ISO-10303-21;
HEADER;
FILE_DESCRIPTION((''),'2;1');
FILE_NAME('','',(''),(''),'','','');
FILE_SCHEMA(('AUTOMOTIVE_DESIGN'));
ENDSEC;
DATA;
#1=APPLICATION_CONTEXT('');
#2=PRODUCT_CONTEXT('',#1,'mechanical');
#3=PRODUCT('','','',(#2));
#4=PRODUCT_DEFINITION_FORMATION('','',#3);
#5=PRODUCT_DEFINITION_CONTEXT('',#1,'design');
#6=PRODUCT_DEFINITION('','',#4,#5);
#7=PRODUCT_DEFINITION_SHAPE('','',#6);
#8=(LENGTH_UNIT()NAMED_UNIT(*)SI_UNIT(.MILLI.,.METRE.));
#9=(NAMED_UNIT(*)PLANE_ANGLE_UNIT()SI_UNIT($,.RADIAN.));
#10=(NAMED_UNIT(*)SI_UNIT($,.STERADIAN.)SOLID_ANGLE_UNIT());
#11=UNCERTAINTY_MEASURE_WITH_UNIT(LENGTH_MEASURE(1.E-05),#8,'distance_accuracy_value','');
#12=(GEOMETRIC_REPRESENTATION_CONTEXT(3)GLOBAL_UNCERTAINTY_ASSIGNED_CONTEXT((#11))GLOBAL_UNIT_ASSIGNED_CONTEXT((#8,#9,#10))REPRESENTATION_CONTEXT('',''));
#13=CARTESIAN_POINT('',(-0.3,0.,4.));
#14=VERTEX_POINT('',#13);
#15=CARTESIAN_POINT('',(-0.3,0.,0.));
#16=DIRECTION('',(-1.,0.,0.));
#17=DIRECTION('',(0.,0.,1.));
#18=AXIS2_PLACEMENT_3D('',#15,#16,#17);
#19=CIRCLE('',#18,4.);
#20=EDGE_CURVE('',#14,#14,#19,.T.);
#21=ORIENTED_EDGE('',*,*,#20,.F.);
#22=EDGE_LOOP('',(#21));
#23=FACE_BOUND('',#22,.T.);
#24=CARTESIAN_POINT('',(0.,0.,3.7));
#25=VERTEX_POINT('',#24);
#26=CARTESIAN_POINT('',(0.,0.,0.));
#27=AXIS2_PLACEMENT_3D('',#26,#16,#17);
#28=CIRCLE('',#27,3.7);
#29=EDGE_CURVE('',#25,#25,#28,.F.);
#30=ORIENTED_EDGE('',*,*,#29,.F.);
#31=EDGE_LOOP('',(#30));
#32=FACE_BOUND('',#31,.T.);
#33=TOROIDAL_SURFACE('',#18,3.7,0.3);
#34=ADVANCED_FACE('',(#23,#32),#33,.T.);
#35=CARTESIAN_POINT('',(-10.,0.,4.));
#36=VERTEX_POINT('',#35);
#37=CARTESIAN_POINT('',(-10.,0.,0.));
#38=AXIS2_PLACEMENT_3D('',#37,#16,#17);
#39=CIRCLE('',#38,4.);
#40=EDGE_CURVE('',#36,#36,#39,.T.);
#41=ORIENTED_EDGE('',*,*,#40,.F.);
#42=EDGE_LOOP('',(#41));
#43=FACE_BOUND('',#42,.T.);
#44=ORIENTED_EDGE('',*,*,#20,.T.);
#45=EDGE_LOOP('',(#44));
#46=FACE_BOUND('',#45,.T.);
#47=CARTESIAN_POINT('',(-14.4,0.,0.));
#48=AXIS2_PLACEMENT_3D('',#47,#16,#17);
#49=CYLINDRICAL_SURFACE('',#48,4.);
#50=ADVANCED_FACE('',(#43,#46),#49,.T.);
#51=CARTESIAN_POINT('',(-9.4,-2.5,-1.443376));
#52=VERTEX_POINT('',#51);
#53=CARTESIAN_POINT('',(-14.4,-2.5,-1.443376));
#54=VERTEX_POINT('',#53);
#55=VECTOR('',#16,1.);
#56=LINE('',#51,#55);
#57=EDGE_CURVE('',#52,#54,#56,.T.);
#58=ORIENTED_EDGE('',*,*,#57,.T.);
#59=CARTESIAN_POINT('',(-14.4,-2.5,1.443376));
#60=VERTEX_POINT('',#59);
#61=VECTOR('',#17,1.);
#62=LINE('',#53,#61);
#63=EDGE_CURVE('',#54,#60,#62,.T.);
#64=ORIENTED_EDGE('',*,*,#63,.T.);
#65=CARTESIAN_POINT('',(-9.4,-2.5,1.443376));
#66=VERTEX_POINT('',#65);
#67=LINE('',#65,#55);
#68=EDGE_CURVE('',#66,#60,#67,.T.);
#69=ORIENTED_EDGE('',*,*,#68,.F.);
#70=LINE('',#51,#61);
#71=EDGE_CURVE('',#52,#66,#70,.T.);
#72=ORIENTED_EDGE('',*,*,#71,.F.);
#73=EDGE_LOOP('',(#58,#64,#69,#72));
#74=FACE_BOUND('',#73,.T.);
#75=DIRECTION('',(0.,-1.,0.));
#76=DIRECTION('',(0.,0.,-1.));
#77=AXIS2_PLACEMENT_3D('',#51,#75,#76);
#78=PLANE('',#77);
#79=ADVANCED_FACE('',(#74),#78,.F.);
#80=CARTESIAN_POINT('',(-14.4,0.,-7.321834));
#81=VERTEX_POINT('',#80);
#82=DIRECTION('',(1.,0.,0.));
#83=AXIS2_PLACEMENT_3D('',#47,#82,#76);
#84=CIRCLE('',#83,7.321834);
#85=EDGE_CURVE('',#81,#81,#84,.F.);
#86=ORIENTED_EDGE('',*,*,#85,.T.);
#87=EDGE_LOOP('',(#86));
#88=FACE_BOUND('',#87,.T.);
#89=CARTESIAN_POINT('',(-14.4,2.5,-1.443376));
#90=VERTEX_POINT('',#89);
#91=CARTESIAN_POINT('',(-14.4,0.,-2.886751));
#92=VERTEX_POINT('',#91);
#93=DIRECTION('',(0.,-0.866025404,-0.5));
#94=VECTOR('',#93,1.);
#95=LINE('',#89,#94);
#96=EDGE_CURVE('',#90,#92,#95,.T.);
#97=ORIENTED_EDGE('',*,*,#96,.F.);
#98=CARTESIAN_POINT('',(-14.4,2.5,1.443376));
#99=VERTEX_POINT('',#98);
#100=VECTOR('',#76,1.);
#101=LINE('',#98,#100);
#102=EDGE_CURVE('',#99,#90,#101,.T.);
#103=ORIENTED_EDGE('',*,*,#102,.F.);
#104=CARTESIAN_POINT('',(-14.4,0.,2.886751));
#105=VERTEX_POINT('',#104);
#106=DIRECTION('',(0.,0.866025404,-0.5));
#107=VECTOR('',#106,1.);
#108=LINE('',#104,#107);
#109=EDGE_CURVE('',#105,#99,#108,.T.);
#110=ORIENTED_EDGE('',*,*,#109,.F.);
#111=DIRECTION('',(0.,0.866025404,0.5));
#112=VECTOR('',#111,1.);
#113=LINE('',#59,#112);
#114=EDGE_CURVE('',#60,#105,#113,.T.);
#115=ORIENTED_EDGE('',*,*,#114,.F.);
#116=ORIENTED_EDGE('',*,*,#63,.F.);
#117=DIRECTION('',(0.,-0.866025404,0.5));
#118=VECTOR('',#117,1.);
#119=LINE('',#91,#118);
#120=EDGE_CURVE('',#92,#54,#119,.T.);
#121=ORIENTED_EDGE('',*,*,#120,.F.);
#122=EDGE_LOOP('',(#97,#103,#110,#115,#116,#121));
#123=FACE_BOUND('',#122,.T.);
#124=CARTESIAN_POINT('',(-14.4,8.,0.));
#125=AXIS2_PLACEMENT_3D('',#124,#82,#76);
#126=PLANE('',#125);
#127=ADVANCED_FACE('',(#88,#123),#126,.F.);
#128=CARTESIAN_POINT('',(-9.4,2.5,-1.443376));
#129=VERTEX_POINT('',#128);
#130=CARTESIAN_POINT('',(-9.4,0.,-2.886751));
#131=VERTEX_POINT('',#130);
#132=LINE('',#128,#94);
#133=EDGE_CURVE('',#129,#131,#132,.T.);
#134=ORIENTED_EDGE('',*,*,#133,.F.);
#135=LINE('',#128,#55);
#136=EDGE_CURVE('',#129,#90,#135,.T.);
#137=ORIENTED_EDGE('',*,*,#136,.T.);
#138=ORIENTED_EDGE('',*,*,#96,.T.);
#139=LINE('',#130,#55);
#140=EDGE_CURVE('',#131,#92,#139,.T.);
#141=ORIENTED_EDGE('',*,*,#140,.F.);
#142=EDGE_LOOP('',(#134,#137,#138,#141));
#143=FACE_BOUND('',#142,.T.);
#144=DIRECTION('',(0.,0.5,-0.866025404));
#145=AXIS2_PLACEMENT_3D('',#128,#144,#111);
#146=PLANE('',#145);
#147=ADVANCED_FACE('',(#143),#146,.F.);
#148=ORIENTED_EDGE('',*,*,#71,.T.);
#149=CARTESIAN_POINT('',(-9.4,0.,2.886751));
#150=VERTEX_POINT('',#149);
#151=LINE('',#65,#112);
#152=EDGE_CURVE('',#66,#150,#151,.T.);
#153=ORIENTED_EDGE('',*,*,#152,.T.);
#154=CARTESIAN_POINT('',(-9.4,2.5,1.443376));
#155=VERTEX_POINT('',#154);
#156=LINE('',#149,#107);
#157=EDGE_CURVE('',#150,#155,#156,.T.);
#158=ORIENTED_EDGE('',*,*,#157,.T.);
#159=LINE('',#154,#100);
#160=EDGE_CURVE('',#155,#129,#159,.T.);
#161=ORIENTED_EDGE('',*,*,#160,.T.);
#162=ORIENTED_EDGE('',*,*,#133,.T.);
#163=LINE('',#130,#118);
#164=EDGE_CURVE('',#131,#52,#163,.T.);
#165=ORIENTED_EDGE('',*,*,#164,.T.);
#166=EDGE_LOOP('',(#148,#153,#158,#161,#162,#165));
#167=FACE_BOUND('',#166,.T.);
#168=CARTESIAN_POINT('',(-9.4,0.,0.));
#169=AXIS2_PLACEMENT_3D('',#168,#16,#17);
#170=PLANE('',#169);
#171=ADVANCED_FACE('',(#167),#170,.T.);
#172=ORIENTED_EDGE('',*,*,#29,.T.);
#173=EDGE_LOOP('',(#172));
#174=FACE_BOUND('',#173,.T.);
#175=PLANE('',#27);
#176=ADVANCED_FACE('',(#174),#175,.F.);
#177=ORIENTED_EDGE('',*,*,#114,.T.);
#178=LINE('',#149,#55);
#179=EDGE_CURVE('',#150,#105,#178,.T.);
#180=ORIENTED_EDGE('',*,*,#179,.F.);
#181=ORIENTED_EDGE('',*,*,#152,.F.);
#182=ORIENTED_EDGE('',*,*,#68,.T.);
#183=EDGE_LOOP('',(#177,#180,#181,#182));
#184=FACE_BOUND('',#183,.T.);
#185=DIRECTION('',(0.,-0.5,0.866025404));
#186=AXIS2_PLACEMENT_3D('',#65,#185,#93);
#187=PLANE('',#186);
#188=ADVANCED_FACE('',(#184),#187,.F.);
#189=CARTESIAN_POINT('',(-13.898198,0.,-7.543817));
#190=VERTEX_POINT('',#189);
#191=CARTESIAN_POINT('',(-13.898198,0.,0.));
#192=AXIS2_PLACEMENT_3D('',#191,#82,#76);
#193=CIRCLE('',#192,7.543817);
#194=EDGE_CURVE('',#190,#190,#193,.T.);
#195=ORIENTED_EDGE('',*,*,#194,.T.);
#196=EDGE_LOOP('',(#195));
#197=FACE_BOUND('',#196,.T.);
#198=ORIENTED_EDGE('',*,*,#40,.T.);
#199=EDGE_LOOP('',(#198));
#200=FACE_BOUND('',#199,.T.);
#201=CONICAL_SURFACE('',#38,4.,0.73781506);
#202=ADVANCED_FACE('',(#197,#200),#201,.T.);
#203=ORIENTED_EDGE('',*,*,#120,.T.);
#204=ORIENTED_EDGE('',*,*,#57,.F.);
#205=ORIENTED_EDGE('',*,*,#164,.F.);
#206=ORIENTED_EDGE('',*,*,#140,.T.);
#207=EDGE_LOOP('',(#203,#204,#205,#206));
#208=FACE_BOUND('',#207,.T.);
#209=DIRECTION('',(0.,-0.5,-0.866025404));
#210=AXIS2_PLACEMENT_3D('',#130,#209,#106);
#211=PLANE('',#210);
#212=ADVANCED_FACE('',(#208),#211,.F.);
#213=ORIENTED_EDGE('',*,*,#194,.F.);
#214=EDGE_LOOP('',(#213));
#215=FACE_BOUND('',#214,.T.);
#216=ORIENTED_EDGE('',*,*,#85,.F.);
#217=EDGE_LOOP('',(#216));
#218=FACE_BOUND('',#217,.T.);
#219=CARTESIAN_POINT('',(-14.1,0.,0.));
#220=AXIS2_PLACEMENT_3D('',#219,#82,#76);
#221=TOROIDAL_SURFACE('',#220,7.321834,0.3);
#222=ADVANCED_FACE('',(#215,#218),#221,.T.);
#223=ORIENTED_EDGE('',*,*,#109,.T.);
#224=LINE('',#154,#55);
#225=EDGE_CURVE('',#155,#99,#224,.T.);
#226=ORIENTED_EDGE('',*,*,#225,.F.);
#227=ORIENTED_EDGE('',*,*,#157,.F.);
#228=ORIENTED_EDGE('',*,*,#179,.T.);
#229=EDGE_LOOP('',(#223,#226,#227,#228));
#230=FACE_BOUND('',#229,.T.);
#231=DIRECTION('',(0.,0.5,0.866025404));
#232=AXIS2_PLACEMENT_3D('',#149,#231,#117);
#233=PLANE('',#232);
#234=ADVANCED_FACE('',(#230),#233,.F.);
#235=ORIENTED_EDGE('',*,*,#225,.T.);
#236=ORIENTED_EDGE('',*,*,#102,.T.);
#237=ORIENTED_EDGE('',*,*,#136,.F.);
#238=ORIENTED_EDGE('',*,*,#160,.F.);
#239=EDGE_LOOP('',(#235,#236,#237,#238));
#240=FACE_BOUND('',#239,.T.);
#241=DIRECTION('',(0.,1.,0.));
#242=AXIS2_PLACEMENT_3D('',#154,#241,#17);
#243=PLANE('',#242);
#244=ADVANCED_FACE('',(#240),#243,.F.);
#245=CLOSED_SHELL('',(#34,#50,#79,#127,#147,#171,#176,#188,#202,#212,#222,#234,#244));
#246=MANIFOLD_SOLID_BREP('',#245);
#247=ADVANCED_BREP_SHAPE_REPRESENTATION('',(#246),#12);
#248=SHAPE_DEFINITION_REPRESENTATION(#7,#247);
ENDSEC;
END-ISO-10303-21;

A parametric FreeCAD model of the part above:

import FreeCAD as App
import Part
import Sketcher
Q = App.Units.Quantity


def edges_at(feature, points):
    """Names of the edges that pass closest to the given points."""
    edges = feature.Shape.Edges
    near = lambda p: min(range(len(edges)), key=lambda i: edges[i].distToShape(Part.Vertex(*p))[0])
    return sorted({f"Edge{near(p) + 1}" for p in points})

doc = App.newDocument("Part")
body = doc.addObject("PartDesign::Body", "Body")

# Sketch on XY plane
sketch1 = body.newObject("Sketcher::SketchObject", "Sketch")
sketch1.AttachmentSupport = (doc.getObject("XY_Plane"), [""])
sketch1.MapMode = "FlatFace"
sketch1.addGeometry([
    Part.LineSegment(App.Vector(0, 0, 0), App.Vector(0, 4, 0)),  # 0
    Part.LineSegment(App.Vector(0, 4, 0), App.Vector(-10, 4, 0)),  # 1
    Part.LineSegment(App.Vector(-10, 4, 0), App.Vector(-14.4, 8, 0)),  # 2
    Part.LineSegment(App.Vector(-14.4, 8, 0), App.Vector(-14.4, 0, 0)),  # 3
    Part.LineSegment(App.Vector(-14.4, 0, 0), App.Vector(0, 0, 0)),  # 4
], False)
sketch1.addConstraint([
    Sketcher.Constraint("Coincident", 0, 2, 1, 1),
    Sketcher.Constraint("Coincident", 1, 2, 2, 1),
    Sketcher.Constraint("Coincident", 2, 2, 3, 1),
    Sketcher.Constraint("Coincident", 3, 2, 4, 1),
    Sketcher.Constraint("Coincident", 4, 2, 0, 1),
    Sketcher.Constraint("Vertical", 0),
    Sketcher.Constraint("Horizontal", 1),
    Sketcher.Constraint("Vertical", 3),
    Sketcher.Constraint("Horizontal", 4),
    Sketcher.Constraint("Coincident", 4, 2, -1, 1),
    Sketcher.Constraint("DistanceX", 1, 2, 1, 1, 10.0),
    Sketcher.Constraint("DistanceY", 0, 1, 0, 2, 4.0),
    Sketcher.Constraint("DistanceY", 3, 2, 3, 1, 8.0),
    Sketcher.Constraint("DistanceX", 4, 1, 4, 2, 14.4),
])
revolution = body.newObject("PartDesign::Revolution", "Revolution")
revolution.Profile = sketch1
revolution.ReferenceAxis = (sketch1, ["H_Axis"])
revolution.Angle = 360

# Sketch on YZ plane
sketch2 = body.newObject("Sketcher::SketchObject", "Sketch001")
sketch2.AttachmentSupport = (doc.getObject("YZ_Plane"), [""])
sketch2.MapMode = "FlatFace"
sketch2.AttachmentOffset = App.Placement(App.Vector(0, 0, -14.4), App.Rotation())
sketch2.addGeometry([
    Part.LineSegment(App.Vector(0, 2.9, 0), App.Vector(2.5, 1.4, 0)),  # 0
    Part.LineSegment(App.Vector(2.5, 1.4, 0), App.Vector(2.5, -1.4, 0)),  # 1
    Part.LineSegment(App.Vector(2.5, -1.4, 0), App.Vector(0, -2.9, 0)),  # 2
    Part.LineSegment(App.Vector(0, -2.9, 0), App.Vector(-2.5, -1.4, 0)),  # 3
    Part.LineSegment(App.Vector(-2.5, -1.4, 0), App.Vector(-2.5, 1.4, 0)),  # 4
    Part.LineSegment(App.Vector(-2.5, 1.4, 0), App.Vector(0, 2.9, 0)),  # 5
], False)
sketch2.addConstraint([
    Sketcher.Constraint("Coincident", 0, 2, 1, 1),
    Sketcher.Constraint("Coincident", 1, 2, 2, 1),
    Sketcher.Constraint("Coincident", 2, 2, 3, 1),
    Sketcher.Constraint("Coincident", 3, 2, 4, 1),
    Sketcher.Constraint("Coincident", 4, 2, 5, 1),
    Sketcher.Constraint("Coincident", 5, 2, 0, 1),
    Sketcher.Constraint("Vertical", 1),
    Sketcher.Constraint("Vertical", 4),
    Sketcher.Constraint("Symmetric", 0, 2, 3, 2, -1, 1),
    Sketcher.Constraint("Symmetric", 2, 2, 5, 2, -1, 1),
    Sketcher.Constraint("PointOnObject", 2, 2, -2),
    Sketcher.Constraint("Parallel", 2, 5),
    Sketcher.Constraint("Horizontal", 1, 2, 3, 2),
    Sketcher.Constraint("Angle", 0, Q("-30 deg")),
    Sketcher.Constraint("DistanceX", 3, 2, 1, 2, 5.0),
    Sketcher.Constraint("DistanceY", 1, 2, 1, 1, 2.886751),
])
pocket1 = body.newObject("PartDesign::Pocket", "Pocket")
pocket1.Profile = sketch2
pocket1.Length = 5
pocket1.Reversed = True
doc.recompute()

fillet = body.newObject("PartDesign::Fillet", "Fillet")
fillet.Base = (pocket1, edges_at(pocket1, [(-14.4, 0, -8), (0, 0, -4)]))
fillet.Radius = 0.3

doc.recompute()
